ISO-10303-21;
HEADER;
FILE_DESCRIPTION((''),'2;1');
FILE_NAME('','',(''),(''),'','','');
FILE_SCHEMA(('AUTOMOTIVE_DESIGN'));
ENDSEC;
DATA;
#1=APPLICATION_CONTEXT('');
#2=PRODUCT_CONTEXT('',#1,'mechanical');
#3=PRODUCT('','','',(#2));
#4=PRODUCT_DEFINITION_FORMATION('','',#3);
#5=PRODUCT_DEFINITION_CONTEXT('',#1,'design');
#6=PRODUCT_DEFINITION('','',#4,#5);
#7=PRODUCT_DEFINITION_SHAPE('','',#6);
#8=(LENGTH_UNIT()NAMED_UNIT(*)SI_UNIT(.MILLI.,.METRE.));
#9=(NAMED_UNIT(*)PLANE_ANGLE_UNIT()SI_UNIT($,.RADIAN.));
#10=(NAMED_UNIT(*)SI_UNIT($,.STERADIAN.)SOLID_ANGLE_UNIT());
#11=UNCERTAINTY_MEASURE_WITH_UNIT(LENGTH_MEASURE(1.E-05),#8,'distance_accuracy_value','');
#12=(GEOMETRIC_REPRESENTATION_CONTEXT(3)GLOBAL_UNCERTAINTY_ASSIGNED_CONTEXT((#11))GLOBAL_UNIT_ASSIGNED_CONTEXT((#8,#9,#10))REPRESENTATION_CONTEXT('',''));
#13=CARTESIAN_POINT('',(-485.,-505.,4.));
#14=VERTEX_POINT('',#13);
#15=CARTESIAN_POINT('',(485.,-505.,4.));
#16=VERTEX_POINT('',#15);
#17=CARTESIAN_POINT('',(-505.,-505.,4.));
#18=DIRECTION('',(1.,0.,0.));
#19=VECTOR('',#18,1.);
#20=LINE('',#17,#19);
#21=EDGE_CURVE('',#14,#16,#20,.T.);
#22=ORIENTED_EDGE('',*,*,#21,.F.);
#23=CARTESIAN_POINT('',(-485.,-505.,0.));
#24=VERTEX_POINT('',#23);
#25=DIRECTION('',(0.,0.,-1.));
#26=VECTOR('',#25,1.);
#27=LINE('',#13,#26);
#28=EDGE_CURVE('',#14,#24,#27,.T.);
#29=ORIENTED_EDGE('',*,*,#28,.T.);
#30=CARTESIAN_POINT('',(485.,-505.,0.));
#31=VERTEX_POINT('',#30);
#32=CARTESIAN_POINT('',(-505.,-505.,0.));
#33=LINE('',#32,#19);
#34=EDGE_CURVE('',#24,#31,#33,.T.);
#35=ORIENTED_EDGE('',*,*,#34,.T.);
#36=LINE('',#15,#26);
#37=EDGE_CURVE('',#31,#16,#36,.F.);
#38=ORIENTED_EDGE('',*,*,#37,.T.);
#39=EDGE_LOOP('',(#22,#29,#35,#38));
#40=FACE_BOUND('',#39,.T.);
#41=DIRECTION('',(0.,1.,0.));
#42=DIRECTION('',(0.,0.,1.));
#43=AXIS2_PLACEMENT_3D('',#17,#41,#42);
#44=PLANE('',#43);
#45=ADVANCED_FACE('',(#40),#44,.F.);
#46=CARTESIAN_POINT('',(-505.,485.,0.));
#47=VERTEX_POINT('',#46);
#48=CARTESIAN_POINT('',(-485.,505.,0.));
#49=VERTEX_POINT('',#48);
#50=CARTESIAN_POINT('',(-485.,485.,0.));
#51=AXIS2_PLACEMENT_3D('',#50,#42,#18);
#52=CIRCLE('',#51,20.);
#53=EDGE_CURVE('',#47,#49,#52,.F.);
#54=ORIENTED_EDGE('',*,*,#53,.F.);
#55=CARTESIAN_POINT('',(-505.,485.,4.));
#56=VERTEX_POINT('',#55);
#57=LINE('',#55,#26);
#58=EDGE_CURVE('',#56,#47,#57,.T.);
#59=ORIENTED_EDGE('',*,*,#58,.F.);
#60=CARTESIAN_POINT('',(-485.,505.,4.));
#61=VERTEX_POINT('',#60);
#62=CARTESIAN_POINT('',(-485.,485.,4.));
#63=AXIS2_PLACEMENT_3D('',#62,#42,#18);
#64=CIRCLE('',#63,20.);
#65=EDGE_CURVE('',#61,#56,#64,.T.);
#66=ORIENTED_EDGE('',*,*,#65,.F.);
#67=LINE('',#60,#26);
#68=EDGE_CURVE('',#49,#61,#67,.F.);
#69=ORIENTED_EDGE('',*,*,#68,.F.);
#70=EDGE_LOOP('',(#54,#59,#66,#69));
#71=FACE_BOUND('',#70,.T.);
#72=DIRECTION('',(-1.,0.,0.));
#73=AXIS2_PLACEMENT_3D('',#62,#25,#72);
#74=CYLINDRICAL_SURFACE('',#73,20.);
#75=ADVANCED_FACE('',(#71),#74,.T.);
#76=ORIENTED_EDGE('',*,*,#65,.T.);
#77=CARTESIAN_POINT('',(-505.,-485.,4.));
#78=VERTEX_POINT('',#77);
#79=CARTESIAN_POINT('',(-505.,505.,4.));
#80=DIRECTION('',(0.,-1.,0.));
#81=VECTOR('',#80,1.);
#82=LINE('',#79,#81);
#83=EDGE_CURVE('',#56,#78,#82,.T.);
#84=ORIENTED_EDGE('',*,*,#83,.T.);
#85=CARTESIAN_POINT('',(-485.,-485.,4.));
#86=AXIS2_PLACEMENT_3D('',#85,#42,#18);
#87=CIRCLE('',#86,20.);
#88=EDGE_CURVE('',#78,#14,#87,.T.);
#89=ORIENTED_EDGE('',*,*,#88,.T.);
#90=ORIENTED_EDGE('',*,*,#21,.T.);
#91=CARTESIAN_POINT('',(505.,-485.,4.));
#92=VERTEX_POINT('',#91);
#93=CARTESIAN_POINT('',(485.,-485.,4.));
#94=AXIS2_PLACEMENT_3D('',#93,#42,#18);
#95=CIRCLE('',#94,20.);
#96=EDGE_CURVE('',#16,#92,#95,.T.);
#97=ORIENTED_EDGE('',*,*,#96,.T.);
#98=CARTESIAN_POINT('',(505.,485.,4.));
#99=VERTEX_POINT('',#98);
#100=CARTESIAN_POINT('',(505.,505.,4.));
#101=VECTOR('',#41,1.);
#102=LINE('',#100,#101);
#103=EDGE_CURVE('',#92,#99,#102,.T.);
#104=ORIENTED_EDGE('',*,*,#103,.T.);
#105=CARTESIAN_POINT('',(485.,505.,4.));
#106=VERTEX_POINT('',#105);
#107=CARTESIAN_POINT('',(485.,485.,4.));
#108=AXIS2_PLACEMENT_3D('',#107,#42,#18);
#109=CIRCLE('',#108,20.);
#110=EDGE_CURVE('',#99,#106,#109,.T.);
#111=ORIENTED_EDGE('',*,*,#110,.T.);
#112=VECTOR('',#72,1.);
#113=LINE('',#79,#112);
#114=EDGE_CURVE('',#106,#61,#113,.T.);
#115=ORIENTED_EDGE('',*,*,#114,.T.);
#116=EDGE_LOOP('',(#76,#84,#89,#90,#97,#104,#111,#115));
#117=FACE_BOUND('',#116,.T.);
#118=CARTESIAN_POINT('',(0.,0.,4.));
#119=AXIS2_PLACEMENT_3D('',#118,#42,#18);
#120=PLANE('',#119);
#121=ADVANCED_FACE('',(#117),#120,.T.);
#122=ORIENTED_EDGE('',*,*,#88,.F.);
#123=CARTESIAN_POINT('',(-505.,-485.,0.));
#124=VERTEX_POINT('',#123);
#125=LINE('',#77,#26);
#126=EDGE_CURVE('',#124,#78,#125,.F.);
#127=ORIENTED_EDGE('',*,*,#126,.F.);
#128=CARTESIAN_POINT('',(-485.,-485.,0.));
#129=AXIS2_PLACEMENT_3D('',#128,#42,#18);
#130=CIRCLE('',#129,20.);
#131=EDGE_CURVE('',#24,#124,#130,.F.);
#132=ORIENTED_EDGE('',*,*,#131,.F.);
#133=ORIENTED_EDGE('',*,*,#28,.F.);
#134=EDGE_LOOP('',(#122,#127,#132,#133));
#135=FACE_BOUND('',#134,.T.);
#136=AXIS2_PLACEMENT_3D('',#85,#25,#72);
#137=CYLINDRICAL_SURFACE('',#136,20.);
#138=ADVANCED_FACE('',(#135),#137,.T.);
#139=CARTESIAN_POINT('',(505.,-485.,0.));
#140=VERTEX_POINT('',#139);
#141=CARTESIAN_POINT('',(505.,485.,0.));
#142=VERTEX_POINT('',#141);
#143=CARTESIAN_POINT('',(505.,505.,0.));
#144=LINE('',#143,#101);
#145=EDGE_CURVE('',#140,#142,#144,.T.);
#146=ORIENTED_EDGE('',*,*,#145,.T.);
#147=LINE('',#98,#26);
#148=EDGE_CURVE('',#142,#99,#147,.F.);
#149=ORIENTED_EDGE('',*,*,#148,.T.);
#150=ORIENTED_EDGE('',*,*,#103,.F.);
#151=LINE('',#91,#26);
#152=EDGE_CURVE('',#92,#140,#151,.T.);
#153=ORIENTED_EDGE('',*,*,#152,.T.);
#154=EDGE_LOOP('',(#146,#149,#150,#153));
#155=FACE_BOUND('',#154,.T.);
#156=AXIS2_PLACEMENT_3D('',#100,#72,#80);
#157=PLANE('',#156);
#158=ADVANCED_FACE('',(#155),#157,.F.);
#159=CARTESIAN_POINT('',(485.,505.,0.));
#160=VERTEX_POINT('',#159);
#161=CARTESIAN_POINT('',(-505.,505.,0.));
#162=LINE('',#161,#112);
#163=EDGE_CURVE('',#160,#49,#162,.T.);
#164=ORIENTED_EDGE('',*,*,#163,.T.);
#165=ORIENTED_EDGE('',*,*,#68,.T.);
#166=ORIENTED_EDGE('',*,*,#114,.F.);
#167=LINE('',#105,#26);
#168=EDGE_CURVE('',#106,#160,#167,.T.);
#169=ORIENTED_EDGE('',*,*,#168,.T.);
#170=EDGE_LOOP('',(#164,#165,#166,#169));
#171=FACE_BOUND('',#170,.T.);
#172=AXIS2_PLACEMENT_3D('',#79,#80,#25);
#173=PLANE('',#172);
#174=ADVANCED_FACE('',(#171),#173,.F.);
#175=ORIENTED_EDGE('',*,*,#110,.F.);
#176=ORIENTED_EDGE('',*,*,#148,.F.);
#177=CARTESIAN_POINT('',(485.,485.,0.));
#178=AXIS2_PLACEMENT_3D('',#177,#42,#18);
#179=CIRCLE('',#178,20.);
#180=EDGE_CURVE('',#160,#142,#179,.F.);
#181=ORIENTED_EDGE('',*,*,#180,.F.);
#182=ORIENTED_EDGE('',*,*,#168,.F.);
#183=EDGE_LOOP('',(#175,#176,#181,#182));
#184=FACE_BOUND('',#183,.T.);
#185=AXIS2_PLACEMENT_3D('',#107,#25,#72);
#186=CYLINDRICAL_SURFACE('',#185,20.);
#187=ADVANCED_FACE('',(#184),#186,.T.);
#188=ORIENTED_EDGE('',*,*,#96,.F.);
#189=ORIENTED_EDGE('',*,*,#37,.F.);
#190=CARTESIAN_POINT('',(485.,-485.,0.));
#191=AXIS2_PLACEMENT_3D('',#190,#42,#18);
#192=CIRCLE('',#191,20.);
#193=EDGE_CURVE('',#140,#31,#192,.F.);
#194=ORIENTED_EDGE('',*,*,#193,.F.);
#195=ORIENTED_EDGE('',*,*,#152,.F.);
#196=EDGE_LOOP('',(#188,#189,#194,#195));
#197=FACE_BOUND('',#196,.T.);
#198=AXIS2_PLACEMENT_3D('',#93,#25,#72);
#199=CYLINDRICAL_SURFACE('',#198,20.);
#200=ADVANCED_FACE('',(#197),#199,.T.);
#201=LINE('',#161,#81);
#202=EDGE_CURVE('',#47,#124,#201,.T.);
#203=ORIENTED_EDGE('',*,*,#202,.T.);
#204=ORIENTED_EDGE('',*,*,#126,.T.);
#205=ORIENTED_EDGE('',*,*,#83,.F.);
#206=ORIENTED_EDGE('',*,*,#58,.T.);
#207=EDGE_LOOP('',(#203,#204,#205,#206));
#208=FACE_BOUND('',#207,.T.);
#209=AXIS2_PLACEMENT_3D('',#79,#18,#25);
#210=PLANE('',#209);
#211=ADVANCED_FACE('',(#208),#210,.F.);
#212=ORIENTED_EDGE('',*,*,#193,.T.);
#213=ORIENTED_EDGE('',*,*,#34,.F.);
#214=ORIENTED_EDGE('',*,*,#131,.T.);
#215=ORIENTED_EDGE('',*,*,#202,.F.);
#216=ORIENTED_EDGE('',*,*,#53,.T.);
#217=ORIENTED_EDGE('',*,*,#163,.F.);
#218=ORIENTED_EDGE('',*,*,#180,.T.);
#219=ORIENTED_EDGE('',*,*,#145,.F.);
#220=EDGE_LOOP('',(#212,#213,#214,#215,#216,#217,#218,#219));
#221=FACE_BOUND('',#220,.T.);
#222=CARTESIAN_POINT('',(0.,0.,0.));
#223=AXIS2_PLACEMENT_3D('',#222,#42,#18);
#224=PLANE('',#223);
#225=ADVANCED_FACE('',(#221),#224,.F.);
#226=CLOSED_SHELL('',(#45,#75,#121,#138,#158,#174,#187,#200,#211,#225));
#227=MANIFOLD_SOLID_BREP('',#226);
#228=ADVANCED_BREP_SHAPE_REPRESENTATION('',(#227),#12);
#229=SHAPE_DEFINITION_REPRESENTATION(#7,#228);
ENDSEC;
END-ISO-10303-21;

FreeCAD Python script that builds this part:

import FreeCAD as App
import Part
import Sketcher


def edges_at(feature, points):
    """Names of the edges that pass closest to the given points."""
    edges = feature.Shape.Edges
    near = lambda p: min(range(len(edges)), key=lambda i: edges[i].distToShape(Part.Vertex(*p))[0])
    return sorted({f"Edge{near(p) + 1}" for p in points})


def add_polygon(sketch, points):
    """Adds a closed chain of lines whose ends are joined by coincident constraints."""
    first, n = sketch.GeometryCount, len(points)
    for a, b in zip(points, points[1:] + points[:1]):
        sketch.addGeometry(Part.LineSegment(App.Vector(*a, 0), App.Vector(*b, 0)), False)
    for i in range(n):
        sketch.addConstraint(Sketcher.Constraint("Coincident", first + i, 2, first + (i + 1) % n, 1))

doc = App.newDocument("Part")
params = doc.addObject("Spreadsheet::Sheet", "Params")
for row, (alias, value) in enumerate([
    ("sketch1_width", "1010 mm"),
    ("pad1_length", "4 mm"),
    ("fillet_radius", "20 mm"),
], start=1):
    params.set(f"A{row}", alias)
    params.set(f"B{row}", "=" + value)
    params.setAlias(f"B{row}", alias)

body = doc.addObject("PartDesign::Body", "Body")

sketch1 = body.newObject("Sketcher::SketchObject", "Sketch")
sketch1.AttachmentSupport = (doc.getObject("XY_Plane"), [""])
sketch1.MapMode = "FlatFace"
add_polygon(sketch1, [(-505, 505), (-505, -505), (505, -505), (505, 505)])
sketch1.addConstraint(Sketcher.Constraint("Vertical", 0))
sketch1.addConstraint(Sketcher.Constraint("Horizontal", 1))
sketch1.addConstraint(Sketcher.Constraint("Vertical", 2))
sketch1.addConstraint(Sketcher.Constraint("Horizontal", 3))
sketch1.addConstraint(Sketcher.Constraint("Symmetric", 0, 2, 2, 2, -1, 1))
sketch1.addConstraint(Sketcher.Constraint("Equal", 3, 0))
sketch1.addConstraint(Sketcher.Constraint("DistanceX", 1, 1, 1, 2, 1010.0))
sketch1.setExpression("Constraints[10]", "Params.sketch1_width")
pad1 = body.newObject("PartDesign::Pad", "Pad")
pad1.Profile = sketch1
pad1.setExpression("Length", "Params.pad1_length")
doc.recompute()

fillet = body.newObject("PartDesign::Fillet", "Fillet")
fillet.Base = (pad1, edges_at(pad1, [
    (505, -505, 2),
    (-505, -505, 2),
    (-505, 505, 2),
    (505, 505, 2),
]))
fillet.setExpression("Radius", "Params.fillet_radius")

doc.recompute()
